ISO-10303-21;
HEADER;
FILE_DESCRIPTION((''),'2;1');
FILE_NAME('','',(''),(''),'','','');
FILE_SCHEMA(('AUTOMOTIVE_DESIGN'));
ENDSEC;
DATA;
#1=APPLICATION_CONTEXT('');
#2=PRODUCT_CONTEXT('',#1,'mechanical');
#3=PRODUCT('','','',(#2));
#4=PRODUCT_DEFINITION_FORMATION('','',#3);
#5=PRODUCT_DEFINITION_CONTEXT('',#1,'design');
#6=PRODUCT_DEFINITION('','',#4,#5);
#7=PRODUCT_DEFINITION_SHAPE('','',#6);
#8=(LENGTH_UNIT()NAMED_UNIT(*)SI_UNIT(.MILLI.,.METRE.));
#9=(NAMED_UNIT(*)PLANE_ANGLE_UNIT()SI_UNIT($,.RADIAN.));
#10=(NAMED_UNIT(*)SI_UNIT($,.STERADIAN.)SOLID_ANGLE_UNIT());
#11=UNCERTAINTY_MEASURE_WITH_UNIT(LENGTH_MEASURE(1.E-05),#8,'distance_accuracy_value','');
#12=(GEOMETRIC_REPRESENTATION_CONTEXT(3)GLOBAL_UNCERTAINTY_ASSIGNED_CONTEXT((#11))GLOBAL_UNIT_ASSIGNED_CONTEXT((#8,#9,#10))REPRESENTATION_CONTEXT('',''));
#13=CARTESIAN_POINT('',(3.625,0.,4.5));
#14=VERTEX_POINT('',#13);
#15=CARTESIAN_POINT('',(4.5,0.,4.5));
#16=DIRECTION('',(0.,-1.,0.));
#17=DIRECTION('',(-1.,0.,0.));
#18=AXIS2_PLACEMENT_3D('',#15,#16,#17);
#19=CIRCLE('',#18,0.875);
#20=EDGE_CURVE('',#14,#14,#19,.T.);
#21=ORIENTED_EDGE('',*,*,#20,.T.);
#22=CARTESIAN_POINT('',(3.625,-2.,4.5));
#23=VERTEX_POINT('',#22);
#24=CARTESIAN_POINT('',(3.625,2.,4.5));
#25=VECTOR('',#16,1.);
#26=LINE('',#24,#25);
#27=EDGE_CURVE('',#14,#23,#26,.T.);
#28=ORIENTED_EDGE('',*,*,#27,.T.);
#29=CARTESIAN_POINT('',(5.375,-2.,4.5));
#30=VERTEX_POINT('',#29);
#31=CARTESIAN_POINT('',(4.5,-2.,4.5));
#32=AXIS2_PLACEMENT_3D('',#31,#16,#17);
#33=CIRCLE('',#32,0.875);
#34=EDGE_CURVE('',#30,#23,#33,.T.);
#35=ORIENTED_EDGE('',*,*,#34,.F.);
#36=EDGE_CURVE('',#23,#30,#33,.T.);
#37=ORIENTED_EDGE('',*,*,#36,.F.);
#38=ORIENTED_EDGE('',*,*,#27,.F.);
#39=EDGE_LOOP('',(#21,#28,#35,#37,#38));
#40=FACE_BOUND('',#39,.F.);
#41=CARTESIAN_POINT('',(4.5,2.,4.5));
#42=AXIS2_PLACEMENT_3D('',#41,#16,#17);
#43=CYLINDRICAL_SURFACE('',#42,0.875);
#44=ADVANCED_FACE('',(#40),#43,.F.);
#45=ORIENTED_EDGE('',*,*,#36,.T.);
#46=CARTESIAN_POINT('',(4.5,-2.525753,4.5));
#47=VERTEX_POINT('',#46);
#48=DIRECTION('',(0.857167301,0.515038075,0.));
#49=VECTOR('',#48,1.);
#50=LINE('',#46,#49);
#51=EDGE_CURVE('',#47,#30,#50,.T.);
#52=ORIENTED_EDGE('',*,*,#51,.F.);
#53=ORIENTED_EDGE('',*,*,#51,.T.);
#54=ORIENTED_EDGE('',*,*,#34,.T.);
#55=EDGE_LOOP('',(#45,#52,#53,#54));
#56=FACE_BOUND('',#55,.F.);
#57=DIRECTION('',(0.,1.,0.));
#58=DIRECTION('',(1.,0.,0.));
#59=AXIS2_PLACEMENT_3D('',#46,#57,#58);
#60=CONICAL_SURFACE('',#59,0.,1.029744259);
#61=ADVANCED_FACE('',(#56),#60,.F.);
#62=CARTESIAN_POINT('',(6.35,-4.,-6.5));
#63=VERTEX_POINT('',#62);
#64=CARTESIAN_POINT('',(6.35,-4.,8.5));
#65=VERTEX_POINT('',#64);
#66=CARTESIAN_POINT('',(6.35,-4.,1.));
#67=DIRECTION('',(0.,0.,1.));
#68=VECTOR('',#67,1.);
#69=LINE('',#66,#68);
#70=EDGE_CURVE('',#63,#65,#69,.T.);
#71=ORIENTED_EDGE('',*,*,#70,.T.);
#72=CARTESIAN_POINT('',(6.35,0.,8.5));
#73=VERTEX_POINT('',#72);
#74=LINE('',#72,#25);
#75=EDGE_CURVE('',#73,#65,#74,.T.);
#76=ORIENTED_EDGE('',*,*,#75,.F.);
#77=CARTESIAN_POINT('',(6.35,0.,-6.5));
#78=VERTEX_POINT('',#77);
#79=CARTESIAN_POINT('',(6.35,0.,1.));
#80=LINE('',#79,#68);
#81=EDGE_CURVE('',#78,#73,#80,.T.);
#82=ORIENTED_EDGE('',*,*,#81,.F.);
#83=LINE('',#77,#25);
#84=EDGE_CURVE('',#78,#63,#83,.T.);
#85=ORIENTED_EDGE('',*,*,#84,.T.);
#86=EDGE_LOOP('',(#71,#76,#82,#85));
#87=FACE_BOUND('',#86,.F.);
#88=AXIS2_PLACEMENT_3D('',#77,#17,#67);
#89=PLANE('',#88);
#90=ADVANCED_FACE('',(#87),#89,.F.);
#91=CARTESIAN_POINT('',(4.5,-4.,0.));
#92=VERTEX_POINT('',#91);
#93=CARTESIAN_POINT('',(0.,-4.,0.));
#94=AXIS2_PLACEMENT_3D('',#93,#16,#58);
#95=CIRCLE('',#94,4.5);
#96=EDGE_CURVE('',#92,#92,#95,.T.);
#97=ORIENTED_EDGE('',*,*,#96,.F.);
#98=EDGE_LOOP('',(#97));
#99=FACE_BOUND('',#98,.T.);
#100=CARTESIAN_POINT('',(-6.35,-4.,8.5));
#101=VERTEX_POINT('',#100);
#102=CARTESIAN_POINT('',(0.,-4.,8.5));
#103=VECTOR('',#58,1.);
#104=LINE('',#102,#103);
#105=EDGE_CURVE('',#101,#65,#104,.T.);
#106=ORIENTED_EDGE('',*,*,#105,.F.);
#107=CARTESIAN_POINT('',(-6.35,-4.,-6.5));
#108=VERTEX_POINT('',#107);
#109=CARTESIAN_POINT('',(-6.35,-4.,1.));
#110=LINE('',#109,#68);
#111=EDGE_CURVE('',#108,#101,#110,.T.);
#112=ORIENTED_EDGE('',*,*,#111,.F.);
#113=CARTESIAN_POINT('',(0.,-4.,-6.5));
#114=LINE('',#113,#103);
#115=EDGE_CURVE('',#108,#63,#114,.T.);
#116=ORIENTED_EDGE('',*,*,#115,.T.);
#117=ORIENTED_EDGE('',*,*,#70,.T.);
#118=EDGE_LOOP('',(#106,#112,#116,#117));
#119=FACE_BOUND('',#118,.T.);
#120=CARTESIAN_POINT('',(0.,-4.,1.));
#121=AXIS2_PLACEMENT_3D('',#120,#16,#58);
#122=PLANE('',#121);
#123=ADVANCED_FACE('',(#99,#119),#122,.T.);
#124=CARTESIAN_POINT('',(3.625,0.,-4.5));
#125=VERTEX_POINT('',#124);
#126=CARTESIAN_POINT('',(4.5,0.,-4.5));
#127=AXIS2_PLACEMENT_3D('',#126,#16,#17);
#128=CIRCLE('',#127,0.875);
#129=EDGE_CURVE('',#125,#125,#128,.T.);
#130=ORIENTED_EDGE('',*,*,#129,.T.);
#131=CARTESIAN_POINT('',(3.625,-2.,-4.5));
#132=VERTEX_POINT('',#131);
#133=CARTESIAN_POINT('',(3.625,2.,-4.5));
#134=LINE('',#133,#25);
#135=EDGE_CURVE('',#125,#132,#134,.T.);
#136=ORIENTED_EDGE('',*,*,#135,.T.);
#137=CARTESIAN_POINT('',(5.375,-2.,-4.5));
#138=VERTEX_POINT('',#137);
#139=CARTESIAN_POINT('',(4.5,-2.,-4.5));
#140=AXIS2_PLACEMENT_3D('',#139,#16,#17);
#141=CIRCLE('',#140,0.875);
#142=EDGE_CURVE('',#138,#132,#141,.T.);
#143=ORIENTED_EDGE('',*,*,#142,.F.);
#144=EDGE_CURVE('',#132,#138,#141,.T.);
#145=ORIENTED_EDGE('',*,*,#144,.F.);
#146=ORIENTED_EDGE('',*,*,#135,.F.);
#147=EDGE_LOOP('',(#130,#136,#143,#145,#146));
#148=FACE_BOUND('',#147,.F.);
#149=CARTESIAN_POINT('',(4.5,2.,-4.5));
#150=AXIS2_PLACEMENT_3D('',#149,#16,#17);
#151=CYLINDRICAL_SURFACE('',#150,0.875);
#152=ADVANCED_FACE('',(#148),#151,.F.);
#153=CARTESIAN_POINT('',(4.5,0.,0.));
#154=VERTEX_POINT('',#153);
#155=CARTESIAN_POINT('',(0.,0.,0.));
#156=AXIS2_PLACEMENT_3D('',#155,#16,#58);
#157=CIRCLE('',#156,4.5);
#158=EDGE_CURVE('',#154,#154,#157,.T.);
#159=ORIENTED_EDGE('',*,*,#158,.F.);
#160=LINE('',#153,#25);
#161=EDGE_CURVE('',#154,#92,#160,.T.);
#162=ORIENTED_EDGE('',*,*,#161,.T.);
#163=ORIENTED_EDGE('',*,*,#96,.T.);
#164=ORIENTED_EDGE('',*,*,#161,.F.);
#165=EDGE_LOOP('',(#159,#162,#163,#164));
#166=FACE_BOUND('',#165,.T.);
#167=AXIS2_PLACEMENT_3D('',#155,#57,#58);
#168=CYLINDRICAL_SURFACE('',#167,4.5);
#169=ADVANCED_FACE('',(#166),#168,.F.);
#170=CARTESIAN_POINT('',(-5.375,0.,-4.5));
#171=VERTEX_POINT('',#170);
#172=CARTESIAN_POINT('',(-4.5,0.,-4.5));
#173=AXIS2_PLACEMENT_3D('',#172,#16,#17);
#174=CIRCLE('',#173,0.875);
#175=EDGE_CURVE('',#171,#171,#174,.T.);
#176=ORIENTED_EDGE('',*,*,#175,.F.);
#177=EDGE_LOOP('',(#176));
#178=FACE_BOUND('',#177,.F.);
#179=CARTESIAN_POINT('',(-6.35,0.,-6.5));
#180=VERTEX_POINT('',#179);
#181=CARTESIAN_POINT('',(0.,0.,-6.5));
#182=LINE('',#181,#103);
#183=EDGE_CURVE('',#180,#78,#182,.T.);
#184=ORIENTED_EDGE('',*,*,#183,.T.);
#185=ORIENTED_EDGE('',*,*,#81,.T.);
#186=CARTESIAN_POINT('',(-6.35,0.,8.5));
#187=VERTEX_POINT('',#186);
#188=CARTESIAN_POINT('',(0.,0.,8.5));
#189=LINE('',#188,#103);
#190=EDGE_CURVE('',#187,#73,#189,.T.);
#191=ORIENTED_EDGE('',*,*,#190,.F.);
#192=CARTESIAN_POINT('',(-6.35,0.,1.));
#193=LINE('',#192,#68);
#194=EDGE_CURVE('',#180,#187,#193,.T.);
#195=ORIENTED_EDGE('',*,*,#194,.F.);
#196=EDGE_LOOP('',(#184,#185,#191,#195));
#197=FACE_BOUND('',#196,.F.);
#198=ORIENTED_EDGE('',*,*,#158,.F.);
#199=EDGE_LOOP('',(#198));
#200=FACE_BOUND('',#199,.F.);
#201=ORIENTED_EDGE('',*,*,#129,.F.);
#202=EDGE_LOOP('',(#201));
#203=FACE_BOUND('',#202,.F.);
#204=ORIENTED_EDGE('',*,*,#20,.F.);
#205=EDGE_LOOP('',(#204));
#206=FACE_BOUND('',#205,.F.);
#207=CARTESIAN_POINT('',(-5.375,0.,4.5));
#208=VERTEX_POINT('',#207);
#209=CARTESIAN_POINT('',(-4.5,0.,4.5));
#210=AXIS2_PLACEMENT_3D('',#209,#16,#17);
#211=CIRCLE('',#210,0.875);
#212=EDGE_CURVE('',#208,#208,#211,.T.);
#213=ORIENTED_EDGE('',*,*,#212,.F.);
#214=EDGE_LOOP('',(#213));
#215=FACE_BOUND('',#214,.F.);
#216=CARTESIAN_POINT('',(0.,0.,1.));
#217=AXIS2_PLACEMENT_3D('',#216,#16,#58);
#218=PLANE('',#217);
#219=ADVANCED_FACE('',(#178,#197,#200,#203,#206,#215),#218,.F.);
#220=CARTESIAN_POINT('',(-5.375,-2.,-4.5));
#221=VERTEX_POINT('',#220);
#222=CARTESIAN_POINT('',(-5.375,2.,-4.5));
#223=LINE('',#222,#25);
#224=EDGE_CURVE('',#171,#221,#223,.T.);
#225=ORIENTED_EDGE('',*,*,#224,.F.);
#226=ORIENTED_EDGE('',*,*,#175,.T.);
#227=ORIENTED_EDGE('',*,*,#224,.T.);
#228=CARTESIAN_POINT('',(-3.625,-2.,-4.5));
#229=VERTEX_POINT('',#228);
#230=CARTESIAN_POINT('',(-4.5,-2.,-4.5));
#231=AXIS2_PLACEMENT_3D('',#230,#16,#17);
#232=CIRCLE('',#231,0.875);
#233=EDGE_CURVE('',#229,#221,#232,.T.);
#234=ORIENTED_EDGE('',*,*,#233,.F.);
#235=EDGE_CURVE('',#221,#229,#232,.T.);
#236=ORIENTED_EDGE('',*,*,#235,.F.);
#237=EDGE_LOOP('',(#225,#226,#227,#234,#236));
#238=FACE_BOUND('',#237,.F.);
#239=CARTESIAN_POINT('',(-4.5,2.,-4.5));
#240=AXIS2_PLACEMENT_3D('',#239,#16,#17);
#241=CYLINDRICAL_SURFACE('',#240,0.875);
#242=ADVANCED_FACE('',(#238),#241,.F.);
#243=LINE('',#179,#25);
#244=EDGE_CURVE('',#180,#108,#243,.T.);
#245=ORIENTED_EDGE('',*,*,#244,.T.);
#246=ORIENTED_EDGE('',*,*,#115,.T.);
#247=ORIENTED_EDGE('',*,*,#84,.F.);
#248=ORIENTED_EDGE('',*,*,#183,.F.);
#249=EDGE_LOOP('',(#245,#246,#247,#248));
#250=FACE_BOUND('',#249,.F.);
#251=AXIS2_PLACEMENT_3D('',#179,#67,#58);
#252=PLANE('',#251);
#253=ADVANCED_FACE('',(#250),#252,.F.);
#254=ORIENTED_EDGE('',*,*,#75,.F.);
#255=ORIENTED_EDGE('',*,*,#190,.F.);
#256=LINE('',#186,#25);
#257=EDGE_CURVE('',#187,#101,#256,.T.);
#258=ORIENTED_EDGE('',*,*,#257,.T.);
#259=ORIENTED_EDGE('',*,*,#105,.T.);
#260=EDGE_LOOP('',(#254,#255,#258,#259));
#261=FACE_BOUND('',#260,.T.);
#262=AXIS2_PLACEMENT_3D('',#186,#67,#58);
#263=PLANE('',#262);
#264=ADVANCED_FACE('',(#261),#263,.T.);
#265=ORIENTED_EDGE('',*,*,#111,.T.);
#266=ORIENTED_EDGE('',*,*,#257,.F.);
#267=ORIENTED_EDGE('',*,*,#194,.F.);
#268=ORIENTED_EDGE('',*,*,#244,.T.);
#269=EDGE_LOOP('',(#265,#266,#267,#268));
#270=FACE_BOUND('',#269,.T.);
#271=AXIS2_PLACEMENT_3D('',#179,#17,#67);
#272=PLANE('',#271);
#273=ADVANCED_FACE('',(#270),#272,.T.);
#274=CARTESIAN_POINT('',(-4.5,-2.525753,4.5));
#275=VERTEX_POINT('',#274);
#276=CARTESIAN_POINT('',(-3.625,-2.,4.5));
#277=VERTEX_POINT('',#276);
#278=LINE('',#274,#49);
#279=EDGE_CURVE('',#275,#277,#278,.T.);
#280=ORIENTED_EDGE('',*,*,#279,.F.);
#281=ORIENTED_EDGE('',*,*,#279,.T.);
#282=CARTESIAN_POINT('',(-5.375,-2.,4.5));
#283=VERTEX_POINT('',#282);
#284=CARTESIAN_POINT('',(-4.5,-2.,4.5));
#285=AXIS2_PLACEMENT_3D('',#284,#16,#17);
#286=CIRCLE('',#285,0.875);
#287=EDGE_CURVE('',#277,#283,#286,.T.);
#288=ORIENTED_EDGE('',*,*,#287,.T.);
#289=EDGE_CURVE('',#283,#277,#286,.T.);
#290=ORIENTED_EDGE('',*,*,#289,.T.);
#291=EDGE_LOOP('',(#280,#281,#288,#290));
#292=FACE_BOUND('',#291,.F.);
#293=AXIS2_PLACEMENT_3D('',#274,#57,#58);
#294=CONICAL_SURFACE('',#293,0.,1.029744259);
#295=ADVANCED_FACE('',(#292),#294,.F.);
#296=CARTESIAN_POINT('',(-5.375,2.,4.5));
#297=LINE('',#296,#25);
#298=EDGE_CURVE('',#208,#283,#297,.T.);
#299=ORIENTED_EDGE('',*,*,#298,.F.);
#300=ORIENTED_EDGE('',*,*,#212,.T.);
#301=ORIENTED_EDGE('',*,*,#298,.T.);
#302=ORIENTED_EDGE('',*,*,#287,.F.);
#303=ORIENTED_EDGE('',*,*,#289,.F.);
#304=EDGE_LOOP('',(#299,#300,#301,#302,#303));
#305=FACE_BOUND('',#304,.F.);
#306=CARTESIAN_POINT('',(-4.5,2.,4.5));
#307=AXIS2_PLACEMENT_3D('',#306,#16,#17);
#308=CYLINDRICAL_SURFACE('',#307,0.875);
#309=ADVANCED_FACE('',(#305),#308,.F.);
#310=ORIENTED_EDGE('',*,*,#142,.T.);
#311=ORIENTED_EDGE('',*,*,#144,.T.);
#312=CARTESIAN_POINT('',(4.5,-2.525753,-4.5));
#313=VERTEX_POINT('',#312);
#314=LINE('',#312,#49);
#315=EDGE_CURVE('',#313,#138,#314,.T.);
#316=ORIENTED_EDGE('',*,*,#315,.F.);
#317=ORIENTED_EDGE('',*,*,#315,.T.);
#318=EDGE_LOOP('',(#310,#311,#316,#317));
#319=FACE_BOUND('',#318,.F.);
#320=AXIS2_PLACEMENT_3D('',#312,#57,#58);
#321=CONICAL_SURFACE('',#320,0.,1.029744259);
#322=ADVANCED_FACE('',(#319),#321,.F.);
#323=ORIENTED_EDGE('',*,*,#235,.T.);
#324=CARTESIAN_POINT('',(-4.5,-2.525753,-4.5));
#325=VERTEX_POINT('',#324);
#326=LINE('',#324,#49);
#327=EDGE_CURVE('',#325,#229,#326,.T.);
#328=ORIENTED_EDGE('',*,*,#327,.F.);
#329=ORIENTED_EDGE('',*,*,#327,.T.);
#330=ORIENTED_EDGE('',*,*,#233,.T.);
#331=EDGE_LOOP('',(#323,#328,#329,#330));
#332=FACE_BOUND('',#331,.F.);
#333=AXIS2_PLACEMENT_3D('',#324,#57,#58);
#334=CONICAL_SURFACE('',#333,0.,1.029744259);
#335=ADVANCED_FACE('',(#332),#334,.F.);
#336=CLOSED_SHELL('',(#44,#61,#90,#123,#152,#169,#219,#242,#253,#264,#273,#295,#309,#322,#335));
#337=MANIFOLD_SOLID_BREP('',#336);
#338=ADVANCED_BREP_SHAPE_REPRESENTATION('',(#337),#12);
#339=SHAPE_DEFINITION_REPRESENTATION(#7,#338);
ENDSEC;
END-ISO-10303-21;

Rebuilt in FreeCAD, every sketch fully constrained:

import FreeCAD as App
import Part
import Sketcher
Q = App.Units.Quantity


def add_polygon(sketch, points):
    """Adds a closed chain of lines whose ends are joined by coincident constraints."""
    first, n = sketch.GeometryCount, len(points)
    for a, b in zip(points, points[1:] + points[:1]):
        sketch.addGeometry(Part.LineSegment(App.Vector(*a, 0), App.Vector(*b, 0)), False)
    for i in range(n):
        sketch.addConstraint(Sketcher.Constraint("Coincident", first + i, 2, first + (i + 1) % n, 1))

doc = App.newDocument("Part")
body = doc.addObject("PartDesign::Body", "Body")

sketch1 = doc.addObject("Sketcher::SketchObject", "Sketch")
body.addObject(sketch1)
sketch1.AttachmentSupport = (doc.XZ_Plane, [""])
sketch1.MapMode = "FlatFace"
add_polygon(sketch1, [(-6.3, 8.5), (-6.3, -6.5), (6.3, -6.5), (6.3, 8.5)])
sketch1.addGeometry(Part.Circle(App.Vector(0, 0, 0), App.Vector(0, 0, 1), 4.5), False)
sketch1.addConstraint([
    Sketcher.Constraint("Vertical", 0),
    Sketcher.Constraint("Horizontal", 1),
    Sketcher.Constraint("Vertical", 2),
    Sketcher.Constraint("Horizontal", 3),
    Sketcher.Constraint("Coincident", 4, 3, -1, 1),
    Sketcher.Constraint("Diameter", 4, Q("9 mm")),
    Sketcher.Constraint("DistanceY", 0, 2, 0, 1, Q("15 mm")),
    Sketcher.Constraint("DistanceX", 1, 1, 1, 2, Q("12.7 mm")),
    Sketcher.Constraint("DistanceY", 0, 2, -1, 1, Q("6.5 mm")),
    Sketcher.Constraint("DistanceX", 0, 2, -1, 1, Q("6.35 mm")),
])
pad1 = doc.addObject("PartDesign::Pad", "Pad")
body.addObject(pad1)
pad1.Profile = sketch1
pad1.Length = 4

sketch2 = doc.addObject("Sketcher::SketchObject", "Sketch001")
body.addObject(sketch2)
sketch2.AttachmentSupport = (doc.XZ_Plane, [""])
sketch2.MapMode = "FlatFace"
sketch2.addGeometry(Part.Circle(App.Vector(-4.5, 4.5, 0), App.Vector(0, 0, 1), 0.9), False)
sketch2.addConstraint([
    Sketcher.Constraint("Diameter", 0, Q("1.75 mm")),
    Sketcher.Constraint("DistanceX", 0, 3, -1, 1, Q("4.5 mm")),
    Sketcher.Constraint("DistanceY", -1, 1, 0, 3, Q("4.5 mm")),
])
doc.recompute()
hole = doc.addObject("PartDesign::Hole", "Hole")
body.addObject(hole)
hole.Profile = sketch2
hole.ThreadType = "None"
hole.Diameter = 1.75
hole.DepthType = "Dimension"
hole.Depth = 2
hole.DrillPoint = "Angled"
hole.DrillPointAngle = 118
hole.Reversed = True

sketch3 = doc.addObject("Sketcher::SketchObject", "Sketch002")
body.addObject(sketch3)
sketch3.AttachmentSupport = (doc.XZ_Plane, [""])
sketch3.MapMode = "FlatFace"
sketch3.addGeometry([
    Part.Circle(App.Vector(4.5, 4.5, 0), App.Vector(0, 0, 1), 0.9),
    Part.Circle(App.Vector(4.5, -4.5, 0), App.Vector(0, 0, 1), 0.9),
    Part.Circle(App.Vector(-4.5, -4.5, 0), App.Vector(0, 0, 1), 0.9),
], False)
sketch3.addConstraint([
    Sketcher.Constraint("Equal", 0, 1),
    Sketcher.Constraint("Equal", 1, 2),
    Sketcher.Constraint("Symmetric", 0, 3, 2, 3, -1, 1),
    Sketcher.Constraint("Symmetric", 1, 3, 2, 3, -2),
    Sketcher.Constraint("Diameter", 0, Q("1.75 mm")),
    Sketcher.Constraint("DistanceY", 1, 3, 0, 3, Q("9 mm")),
    Sketcher.Constraint("DistanceX", 2, 3, 1, 3, Q("9 mm")),
])
doc.recompute()
hole2 = doc.addObject("PartDesign::Hole", "Hole001")
body.addObject(hole2)
hole2.Profile = sketch3
hole2.ThreadType = "None"
hole2.Diameter = 1.75
hole2.DepthType = "Dimension"
hole2.Depth = 2
hole2.DrillPoint = "Angled"
hole2.DrillPointAngle = 118
hole2.Reversed = True

doc.recompute()
